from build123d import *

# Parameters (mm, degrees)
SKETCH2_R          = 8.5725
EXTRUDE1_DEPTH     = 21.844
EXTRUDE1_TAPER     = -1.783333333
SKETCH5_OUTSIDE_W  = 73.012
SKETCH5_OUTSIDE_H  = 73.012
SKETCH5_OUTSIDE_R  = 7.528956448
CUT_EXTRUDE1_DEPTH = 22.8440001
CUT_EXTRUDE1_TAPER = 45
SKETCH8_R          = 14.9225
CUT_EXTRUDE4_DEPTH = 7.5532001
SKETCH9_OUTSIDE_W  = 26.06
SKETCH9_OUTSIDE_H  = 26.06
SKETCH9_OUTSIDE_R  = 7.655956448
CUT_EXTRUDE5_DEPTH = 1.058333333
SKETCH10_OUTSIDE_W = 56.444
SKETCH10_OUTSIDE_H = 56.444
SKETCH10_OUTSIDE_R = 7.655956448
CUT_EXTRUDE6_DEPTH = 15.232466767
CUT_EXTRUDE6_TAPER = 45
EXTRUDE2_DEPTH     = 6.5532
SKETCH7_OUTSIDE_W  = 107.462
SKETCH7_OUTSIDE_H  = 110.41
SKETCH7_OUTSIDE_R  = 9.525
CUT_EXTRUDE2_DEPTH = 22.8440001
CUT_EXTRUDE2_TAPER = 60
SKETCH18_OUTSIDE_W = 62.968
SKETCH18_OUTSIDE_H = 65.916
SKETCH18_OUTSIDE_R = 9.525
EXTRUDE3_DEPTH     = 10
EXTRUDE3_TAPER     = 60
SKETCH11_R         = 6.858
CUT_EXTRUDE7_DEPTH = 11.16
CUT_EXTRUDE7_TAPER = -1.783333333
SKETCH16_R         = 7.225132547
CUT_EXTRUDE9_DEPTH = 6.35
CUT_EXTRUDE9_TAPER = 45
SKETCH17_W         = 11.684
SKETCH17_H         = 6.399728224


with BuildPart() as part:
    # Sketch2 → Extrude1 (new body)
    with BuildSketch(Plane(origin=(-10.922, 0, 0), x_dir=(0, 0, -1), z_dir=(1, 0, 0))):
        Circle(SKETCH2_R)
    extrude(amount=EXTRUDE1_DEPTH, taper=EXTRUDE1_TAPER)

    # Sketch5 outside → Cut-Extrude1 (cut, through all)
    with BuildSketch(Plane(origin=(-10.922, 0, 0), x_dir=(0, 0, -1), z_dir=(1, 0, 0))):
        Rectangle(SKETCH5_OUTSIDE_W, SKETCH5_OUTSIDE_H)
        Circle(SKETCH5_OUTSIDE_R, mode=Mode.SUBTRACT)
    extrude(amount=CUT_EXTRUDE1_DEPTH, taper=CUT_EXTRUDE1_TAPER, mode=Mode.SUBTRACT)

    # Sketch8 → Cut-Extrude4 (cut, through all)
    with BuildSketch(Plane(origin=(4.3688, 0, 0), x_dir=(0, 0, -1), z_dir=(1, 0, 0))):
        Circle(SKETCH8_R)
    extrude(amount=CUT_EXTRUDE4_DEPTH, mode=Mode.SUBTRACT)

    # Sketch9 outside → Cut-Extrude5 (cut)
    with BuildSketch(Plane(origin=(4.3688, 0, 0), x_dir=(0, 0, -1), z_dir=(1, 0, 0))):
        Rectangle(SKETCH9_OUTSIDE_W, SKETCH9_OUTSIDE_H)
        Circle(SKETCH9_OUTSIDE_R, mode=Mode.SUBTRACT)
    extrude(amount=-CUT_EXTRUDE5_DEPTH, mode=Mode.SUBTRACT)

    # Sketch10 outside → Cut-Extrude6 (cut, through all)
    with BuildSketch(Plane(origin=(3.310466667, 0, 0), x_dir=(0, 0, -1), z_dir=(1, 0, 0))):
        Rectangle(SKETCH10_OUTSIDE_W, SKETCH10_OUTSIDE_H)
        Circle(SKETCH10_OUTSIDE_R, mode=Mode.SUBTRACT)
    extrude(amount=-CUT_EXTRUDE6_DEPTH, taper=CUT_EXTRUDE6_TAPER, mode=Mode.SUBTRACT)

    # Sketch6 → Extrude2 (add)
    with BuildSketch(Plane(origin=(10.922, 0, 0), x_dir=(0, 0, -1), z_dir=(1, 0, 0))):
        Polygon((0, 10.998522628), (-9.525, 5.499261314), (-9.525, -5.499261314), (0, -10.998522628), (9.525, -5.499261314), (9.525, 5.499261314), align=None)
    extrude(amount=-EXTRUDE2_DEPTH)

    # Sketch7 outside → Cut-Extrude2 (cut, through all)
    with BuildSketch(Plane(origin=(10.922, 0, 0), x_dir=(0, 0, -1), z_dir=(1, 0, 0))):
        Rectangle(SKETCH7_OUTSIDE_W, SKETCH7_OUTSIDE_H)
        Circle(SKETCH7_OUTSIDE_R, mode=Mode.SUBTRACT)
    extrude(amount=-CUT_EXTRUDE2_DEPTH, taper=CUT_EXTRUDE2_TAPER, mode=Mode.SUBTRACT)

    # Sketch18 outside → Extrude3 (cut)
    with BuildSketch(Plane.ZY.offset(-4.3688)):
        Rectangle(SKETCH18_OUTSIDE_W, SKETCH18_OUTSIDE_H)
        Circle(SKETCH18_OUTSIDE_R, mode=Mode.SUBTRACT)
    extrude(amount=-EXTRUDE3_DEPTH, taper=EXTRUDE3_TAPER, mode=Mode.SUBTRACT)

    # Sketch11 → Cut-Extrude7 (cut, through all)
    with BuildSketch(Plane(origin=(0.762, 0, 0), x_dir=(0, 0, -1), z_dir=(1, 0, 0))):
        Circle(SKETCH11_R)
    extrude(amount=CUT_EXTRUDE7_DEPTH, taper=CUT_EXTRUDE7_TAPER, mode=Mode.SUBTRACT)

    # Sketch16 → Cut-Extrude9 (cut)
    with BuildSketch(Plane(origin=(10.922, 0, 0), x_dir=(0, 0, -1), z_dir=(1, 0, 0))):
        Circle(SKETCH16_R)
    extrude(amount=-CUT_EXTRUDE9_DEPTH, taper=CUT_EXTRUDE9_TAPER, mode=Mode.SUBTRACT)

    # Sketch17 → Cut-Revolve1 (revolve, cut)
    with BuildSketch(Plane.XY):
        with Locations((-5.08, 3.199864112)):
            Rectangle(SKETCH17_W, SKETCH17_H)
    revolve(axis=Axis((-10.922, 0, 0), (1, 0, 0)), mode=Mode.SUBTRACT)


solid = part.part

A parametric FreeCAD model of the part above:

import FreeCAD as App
import Part
import Sketcher

V = App.Vector
Q = App.Units.Quantity

doc = App.newDocument("Part")
body = doc.addObject("PartDesign::Body", "Body")

sketch1 = body.newObject("Sketcher::SketchObject", "Sketch")
sketch1.AttachmentSupport = (doc.getObject("YZ_Plane"), [""])
sketch1.MapMode = "FlatFace"
sketch1.AttachmentOffset = App.Placement(V(0, 0, -0.43 * 25.4), App.Rotation())
sketch1.addGeometry(Part.Circle(V(0, 0, 0), V(0, 0, 1), 9), False)
sketch1.addConstraint(Sketcher.Constraint("Coincident", 0, 3, -1, 1))
sketch1.addConstraint(Sketcher.Constraint("Diameter", 0, Q("0.675 in")))
pad1 = body.newObject("PartDesign::Pad", "Pad")
pad1.Profile = sketch1
pad1.Length = Q("0.86 in")
pad1.TaperAngle = 1.783333

sketch2 = body.newObject("Sketcher::SketchObject", "Sketch001")
sketch2.AttachmentSupport = (doc.getObject("YZ_Plane"), [""])
sketch2.MapMode = "FlatFace"
sketch2.AttachmentOffset = App.Placement(V(0, 0, -0.43 * 25.4), App.Rotation())
sketch2.addGeometry(Part.LineSegment(V(37, 37, 0), V(-37, 37, 0)), False)
sketch2.addGeometry(Part.LineSegment(V(-37, 37, 0), V(-37, -37, 0)), False)
sketch2.addGeometry(Part.LineSegment(V(-37, -37, 0), V(37, -37, 0)), False)
sketch2.addGeometry(Part.LineSegment(V(37, -37, 0), V(37, 37, 0)), False)
sketch2.addGeometry(Part.Circle(V(0, 0, 0), V(0, 0, 1), 8), False)
sketch2.addConstraint(Sketcher.Constraint("Coincident", 0, 2, 1, 1))
sketch2.addConstraint(Sketcher.Constraint("Coincident", 1, 2, 2, 1))
sketch2.addConstraint(Sketcher.Constraint("Coincident", 2, 2, 3, 1))
sketch2.addConstraint(Sketcher.Constraint("Coincident", 3, 2, 0, 1))
sketch2.addConstraint(Sketcher.Constraint("Horizontal", 0))
sketch2.addConstraint(Sketcher.Constraint("Vertical", 1))
sketch2.addConstraint(Sketcher.Constraint("Horizontal", 2))
sketch2.addConstraint(Sketcher.Constraint("Vertical", 3))
sketch2.addConstraint(Sketcher.Constraint("Coincident", 4, 3, -1, 1))
sketch2.addConstraint(Sketcher.Constraint("Symmetric", 0, 2, 2, 2, -1, 1))
sketch2.addConstraint(Sketcher.Constraint("Equal", 2, 1))
sketch2.addConstraint(Sketcher.Constraint("Diameter", 4, 15.057913))
sketch2.addConstraint(Sketcher.Constraint("DistanceX", 0, 2, 0, 1, 73.012))
pocket1 = body.newObject("PartDesign::Pocket", "Pocket")
pocket1.Profile = sketch2
pocket1.Length = 22.844
pocket1.Reversed = True
pocket1.TaperAngle = 45

sketch3 = body.newObject("Sketcher::SketchObject", "Sketch002")
sketch3.AttachmentSupport = (doc.getObject("YZ_Plane"), [""])
sketch3.MapMode = "FlatFace"
sketch3.AttachmentOffset = App.Placement(V(0, 0, 0.172 * 25.4), App.Rotation())
sketch3.addGeometry(Part.Circle(V(0, 0, 0), V(0, 0, 1), 15), False)
sketch3.addConstraint(Sketcher.Constraint("Coincident", 0, 3, -1, 1))
sketch3.addConstraint(Sketcher.Constraint("Diameter", 0, Q("1.175 in")))
pocket2 = body.newObject("PartDesign::Pocket", "Pocket001")
pocket2.Profile = sketch3
pocket2.Type = "ThroughAll"
pocket2.Reversed = True

sketch4 = body.newObject("Sketcher::SketchObject", "Sketch003")
sketch4.AttachmentSupport = (doc.getObject("YZ_Plane"), [""])
sketch4.MapMode = "FlatFace"
sketch4.AttachmentOffset = App.Placement(V(0, 0, 0.172 * 25.4), App.Rotation())
sketch4.addGeometry(Part.LineSegment(V(13, 13, 0), V(-13, 13, 0)), False)
sketch4.addGeometry(Part.LineSegment(V(-13, 13, 0), V(-13, -13, 0)), False)
sketch4.addGeometry(Part.LineSegment(V(-13, -13, 0), V(13, -13, 0)), False)
sketch4.addGeometry(Part.LineSegment(V(13, -13, 0), V(13, 13, 0)), False)
sketch4.addGeometry(Part.Circle(V(0, 0, 0), V(0, 0, 1), 8), False)
sketch4.addConstraint(Sketcher.Constraint("Coincident", 0, 2, 1, 1))
sketch4.addConstraint(Sketcher.Constraint("Coincident", 1, 2, 2, 1))
sketch4.addConstraint(Sketcher.Constraint("Coincident", 2, 2, 3, 1))
sketch4.addConstraint(Sketcher.Constraint("Coincident", 3, 2, 0, 1))
sketch4.addConstraint(Sketcher.Constraint("Horizontal", 0))
sketch4.addConstraint(Sketcher.Constraint("Vertical", 1))
sketch4.addConstraint(Sketcher.Constraint("Horizontal", 2))
sketch4.addConstraint(Sketcher.Constraint("Vertical", 3))
sketch4.addConstraint(Sketcher.Constraint("Coincident", 4, 3, -1, 1))
sketch4.addConstraint(Sketcher.Constraint("Symmetric", 0, 2, 2, 2, -1, 1))
sketch4.addConstraint(Sketcher.Constraint("Equal", 2, 1))
sketch4.addConstraint(Sketcher.Constraint("Diameter", 4, 15.311913))
sketch4.addConstraint(Sketcher.Constraint("DistanceX", 0, 2, 0, 1, 26.06))
pocket3 = body.newObject("PartDesign::Pocket", "Pocket002")
pocket3.Profile = sketch4
pocket3.Length = 1.058333

sketch5 = body.newObject("Sketcher::SketchObject", "Sketch004")
sketch5.AttachmentSupport = (doc.getObject("YZ_Plane"), [""])
sketch5.MapMode = "FlatFace"
sketch5.AttachmentOffset = App.Placement(V(0, 0, 3.310467), App.Rotation())
sketch5.addGeometry(Part.LineSegment(V(28, 28, 0), V(-28, 28, 0)), False)
sketch5.addGeometry(Part.LineSegment(V(-28, 28, 0), V(-28, -28, 0)), False)
sketch5.addGeometry(Part.LineSegment(V(-28, -28, 0), V(28, -28, 0)), False)
sketch5.addGeometry(Part.LineSegment(V(28, -28, 0), V(28, 28, 0)), False)
sketch5.addGeometry(Part.Circle(V(0, 0, 0), V(0, 0, 1), 8), False)
sketch5.addConstraint(Sketcher.Constraint("Coincident", 0, 2, 1, 1))
sketch5.addConstraint(Sketcher.Constraint("Coincident", 1, 2, 2, 1))
sketch5.addConstraint(Sketcher.Constraint("Coincident", 2, 2, 3, 1))
sketch5.addConstraint(Sketcher.Constraint("Coincident", 3, 2, 0, 1))
sketch5.addConstraint(Sketcher.Constraint("Horizontal", 0))
sketch5.addConstraint(Sketcher.Constraint("Vertical", 1))
sketch5.addConstraint(Sketcher.Constraint("Horizontal", 2))
sketch5.addConstraint(Sketcher.Constraint("Vertical", 3))
sketch5.addConstraint(Sketcher.Constraint("Coincident", 4, 3, -1, 1))
sketch5.addConstraint(Sketcher.Constraint("Symmetric", 0, 2, 2, 2, -1, 1))
sketch5.addConstraint(Sketcher.Constraint("Equal", 2, 1))
sketch5.addConstraint(Sketcher.Constraint("Diameter", 4, 15.311913))
sketch5.addConstraint(Sketcher.Constraint("DistanceX", 0, 2, 0, 1, 56.444))
pocket4 = body.newObject("PartDesign::Pocket", "Pocket003")
pocket4.Profile = sketch5
pocket4.Length = 15.232467
pocket4.TaperAngle = 45

sketch6 = body.newObject("Sketcher::SketchObject", "Sketch005")
sketch6.AttachmentSupport = (doc.getObject("YZ_Plane"), [""])
sketch6.MapMode = "FlatFace"
sketch6.AttachmentOffset = App.Placement(V(0, 0, 0.43 * 25.4), App.Rotation())
sketch6.addGeometry(Part.LineSegment(V(11, 0, 0), V(5, 10, 0)), False)
sketch6.addGeometry(Part.LineSegment(V(5, 10, 0), V(-5, 10, 0)), False)
sketch6.addGeometry(Part.LineSegment(V(-5, 10, 0), V(-11, 0, 0)), False)
sketch6.addGeometry(Part.LineSegment(V(-11, 0, 0), V(-5, -10, 0)), False)
sketch6.addGeometry(Part.LineSegment(V(-5, -10, 0), V(5, -10, 0)), False)
sketch6.addGeometry(Part.LineSegment(V(5, -10, 0), V(11, 0, 0)), False)
sketch6.addConstraint(Sketcher.Constraint("Coincident", 0, 2, 1, 1))
sketch6.addConstraint(Sketcher.Constraint("Coincident", 1, 2, 2, 1))
sketch6.addConstraint(Sketcher.Constraint("Coincident", 2, 2, 3, 1))
sketch6.addConstraint(Sketcher.Constraint("Coincident", 3, 2, 4, 1))
sketch6.addConstraint(Sketcher.Constraint("Coincident", 4, 2, 5, 1))
sketch6.addConstraint(Sketcher.Constraint("Coincident", 5, 2, 0, 1))
sketch6.addConstraint(Sketcher.Constraint("Horizontal", 1))
sketch6.addConstraint(Sketcher.Constraint("Horizontal", 4))
sketch6.addConstraint(Sketcher.Constraint("Symmetric", 0, 2, 3, 2, -1, 1))
sketch6.addConstraint(Sketcher.Constraint("Symmetric", 2, 2, 5, 2, -1, 1))
sketch6.addConstraint(Sketcher.Constraint("PointOnObject", 2, 2, -1))
sketch6.addConstraint(Sketcher.Constraint("Parallel", 2, 5))
sketch6.addConstraint(Sketcher.Constraint("Vertical", 1, 2, 3, 2))
sketch6.addConstraint(Sketcher.Constraint("Angle", 0, Q("120 deg")))
sketch6.addConstraint(Sketcher.Constraint("DistanceY", 3, 2, 1, 2, Q("0.75 in")))
sketch6.addConstraint(Sketcher.Constraint("DistanceX", 1, 2, 1, 1, 10.998523))
pad2 = body.newObject("PartDesign::Pad", "Pad001")
pad2.Profile = sketch6
pad2.Length = Q("0.258 in")
pad2.Reversed = True

sketch7 = body.newObject("Sketcher::SketchObject", "Sketch006")
sketch7.AttachmentSupport = (doc.getObject("YZ_Plane"), [""])
sketch7.MapMode = "FlatFace"
sketch7.AttachmentOffset = App.Placement(V(0, 0, 0.43 * 25.4), App.Rotation())
sketch7.addGeometry(Part.LineSegment(V(55, 54, 0), V(-55, 54, 0)), False)
sketch7.addGeometry(Part.LineSegment(V(-55, 54, 0), V(-55, -54, 0)), False)
sketch7.addGeometry(Part.LineSegment(V(-55, -54, 0), V(55, -54, 0)), False)
sketch7.addGeometry(Part.LineSegment(V(55, -54, 0), V(55, 54, 0)), False)
sketch7.addGeometry(Part.Circle(V(0, 0, 0), V(0, 0, 1), 10), False)
sketch7.addConstraint(Sketcher.Constraint("Coincident", 0, 2, 1, 1))
sketch7.addConstraint(Sketcher.Constraint("Coincident", 1, 2, 2, 1))
sketch7.addConstraint(Sketcher.Constraint("Coincident", 2, 2, 3, 1))
sketch7.addConstraint(Sketcher.Constraint("Coincident", 3, 2, 0, 1))
sketch7.addConstraint(Sketcher.Constraint("Horizontal", 0))
sketch7.addConstraint(Sketcher.Constraint("Vertical", 1))
sketch7.addConstraint(Sketcher.Constraint("Horizontal", 2))
sketch7.addConstraint(Sketcher.Constraint("Vertical", 3))
sketch7.addConstraint(Sketcher.Constraint("Coincident", 4, 3, -1, 1))
sketch7.addConstraint(Sketcher.Constraint("Symmetric", 0, 2, 2, 2, -1, 1))
sketch7.addConstraint(Sketcher.Constraint("Diameter", 4, Q("0.75 in")))
sketch7.addConstraint(Sketcher.Constraint("DistanceX", 0, 2, 0, 1, 110.41))
sketch7.addConstraint(Sketcher.Constraint("DistanceY", 1, 2, 1, 1, 107.462))
pocket5 = body.newObject("PartDesign::Pocket", "Pocket004")
pocket5.Profile = sketch7
pocket5.Length = 22.844
pocket5.TaperAngle = 60

sketch8 = body.newObject("Sketcher::SketchObject", "Sketch007")
sketch8.AttachmentSupport = (doc.getObject("YZ_Plane"), [""])
sketch8.MapMode = "FlatFace"
sketch8.AttachmentOffset = App.Placement(V(0, 0, 0.172 * 25.4), App.Rotation())
sketch8.addGeometry(Part.LineSegment(V(33, -31, 0), V(-33, -31, 0)), False)
sketch8.addGeometry(Part.LineSegment(V(-33, -31, 0), V(-33, 31, 0)), False)
sketch8.addGeometry(Part.LineSegment(V(-33, 31, 0), V(33, 31, 0)), False)
sketch8.addGeometry(Part.LineSegment(V(33, 31, 0), V(33, -31, 0)), False)
sketch8.addGeometry(Part.Circle(V(0, 0, 0), V(0, 0, 1), 10), False)
sketch8.addConstraint(Sketcher.Constraint("Coincident", 0, 2, 1, 1))
sketch8.addConstraint(Sketcher.Constraint("Coincident", 1, 2, 2, 1))
sketch8.addConstraint(Sketcher.Constraint("Coincident", 2, 2, 3, 1))
sketch8.addConstraint(Sketcher.Constraint("Coincident", 3, 2, 0, 1))
sketch8.addConstraint(Sketcher.Constraint("Horizontal", 0))
sketch8.addConstraint(Sketcher.Constraint("Vertical", 1))
sketch8.addConstraint(Sketcher.Constraint("Horizontal", 2))
sketch8.addConstraint(Sketcher.Constraint("Vertical", 3))
sketch8.addConstraint(Sketcher.Constraint("Coincident", 4, 3, -1, 1))
sketch8.addConstraint(Sketcher.Constraint("Symmetric", 0, 2, 2, 2, -1, 1))
sketch8.addConstraint(Sketcher.Constraint("Diameter", 4, Q("0.75 in")))
sketch8.addConstraint(Sketcher.Constraint("DistanceX", 0, 2, 0, 1, 65.916))
sketch8.addConstraint(Sketcher.Constraint("DistanceY", 1, 1, 1, 2, 62.968))
pocket6 = body.newObject("PartDesign::Pocket", "Pocket005")
pocket6.Profile = sketch8
pocket6.Length = 10
pocket6.Reversed = True
pocket6.TaperAngle = 60

sketch9 = body.newObject("Sketcher::SketchObject", "Sketch008")
sketch9.AttachmentSupport = (doc.getObject("YZ_Plane"), [""])
sketch9.MapMode = "FlatFace"
sketch9.AttachmentOffset = App.Placement(V(0, 0, 0.03 * 25.4), App.Rotation())
sketch9.addGeometry(Part.Circle(V(0, 0, 0), V(0, 0, 1), 7), False)
sketch9.addConstraint(Sketcher.Constraint("Coincident", 0, 3, -1, 1))
sketch9.addConstraint(Sketcher.Constraint("Diameter", 0, Q("0.54 in")))
pocket7 = body.newObject("PartDesign::Pocket", "Pocket006")
pocket7.Profile = sketch9
pocket7.Length = 11.16
pocket7.Reversed = True
pocket7.TaperAngle = 1.783333

sketch10 = body.newObject("Sketcher::SketchObject", "Sketch009")
sketch10.AttachmentSupport = (doc.getObject("YZ_Plane"), [""])
sketch10.MapMode = "FlatFace"
sketch10.AttachmentOffset = App.Placement(V(0, 0, 0.43 * 25.4), App.Rotation())
sketch10.addGeometry(Part.Circle(V(0, 0, 0), V(0, 0, 1), 7), False)
sketch10.addConstraint(Sketcher.Constraint("Coincident", 0, 3, -1, 1))
sketch10.addConstraint(Sketcher.Constraint("Diameter", 0, 14.450265))
pocket8 = body.newObject("PartDesign::Pocket", "Pocket007")
pocket8.Profile = sketch10
pocket8.Length = Q("0.25 in")
pocket8.TaperAngle = -45

sketch11 = body.newObject("Sketcher::SketchObject", "Sketch010")
sketch11.AttachmentSupport = (doc.getObject("XY_Plane"), [""])
sketch11.MapMode = "FlatFace"
sketch11.addGeometry(Part.LineSegment(V(-11, 6, 0), V(-11, 0, 0)), False)
sketch11.addGeometry(Part.LineSegment(V(-11, 0, 0), V(1, 0, 0)), False)
sketch11.addGeometry(Part.LineSegment(V(1, 0, 0), V(1, 6, 0)), False)
sketch11.addGeometry(Part.LineSegment(V(1, 6, 0), V(-11, 6, 0)), False)
sketch11.addConstraint(Sketcher.Constraint("Coincident", 0, 2, 1, 1))
sketch11.addConstraint(Sketcher.Constraint("Coincident", 1, 2, 2, 1))
sketch11.addConstraint(Sketcher.Constraint("Coincident", 2, 2, 3, 1))
sketch11.addConstraint(Sketcher.Constraint("Coincident", 3, 2, 0, 1))
sketch11.addConstraint(Sketcher.Constraint("Vertical", 0))
sketch11.addConstraint(Sketcher.Constraint("Horizontal", 1))
sketch11.addConstraint(Sketcher.Constraint("Vertical", 2))
sketch11.addConstraint(Sketcher.Constraint("Horizontal", 3))
sketch11.addConstraint(Sketcher.Constraint("PointOnObject", 0, 2, -1))
sketch11.addConstraint(Sketcher.Constraint("DistanceX", 1, 1, 1, 2, Q("0.46 in")))
sketch11.addConstraint(Sketcher.Constraint("DistanceX", 0, 2, -1, 1, Q("0.43 in")))
sketch11.addConstraint(Sketcher.Constraint("DistanceY", 0, 2, 0, 1, 6.399728))
groove = body.newObject("PartDesign::Groove", "Groove")
groove.Profile = sketch11
groove.ReferenceAxis = (sketch11, ["H_Axis"])
groove.Angle = 360

doc.recompute()
